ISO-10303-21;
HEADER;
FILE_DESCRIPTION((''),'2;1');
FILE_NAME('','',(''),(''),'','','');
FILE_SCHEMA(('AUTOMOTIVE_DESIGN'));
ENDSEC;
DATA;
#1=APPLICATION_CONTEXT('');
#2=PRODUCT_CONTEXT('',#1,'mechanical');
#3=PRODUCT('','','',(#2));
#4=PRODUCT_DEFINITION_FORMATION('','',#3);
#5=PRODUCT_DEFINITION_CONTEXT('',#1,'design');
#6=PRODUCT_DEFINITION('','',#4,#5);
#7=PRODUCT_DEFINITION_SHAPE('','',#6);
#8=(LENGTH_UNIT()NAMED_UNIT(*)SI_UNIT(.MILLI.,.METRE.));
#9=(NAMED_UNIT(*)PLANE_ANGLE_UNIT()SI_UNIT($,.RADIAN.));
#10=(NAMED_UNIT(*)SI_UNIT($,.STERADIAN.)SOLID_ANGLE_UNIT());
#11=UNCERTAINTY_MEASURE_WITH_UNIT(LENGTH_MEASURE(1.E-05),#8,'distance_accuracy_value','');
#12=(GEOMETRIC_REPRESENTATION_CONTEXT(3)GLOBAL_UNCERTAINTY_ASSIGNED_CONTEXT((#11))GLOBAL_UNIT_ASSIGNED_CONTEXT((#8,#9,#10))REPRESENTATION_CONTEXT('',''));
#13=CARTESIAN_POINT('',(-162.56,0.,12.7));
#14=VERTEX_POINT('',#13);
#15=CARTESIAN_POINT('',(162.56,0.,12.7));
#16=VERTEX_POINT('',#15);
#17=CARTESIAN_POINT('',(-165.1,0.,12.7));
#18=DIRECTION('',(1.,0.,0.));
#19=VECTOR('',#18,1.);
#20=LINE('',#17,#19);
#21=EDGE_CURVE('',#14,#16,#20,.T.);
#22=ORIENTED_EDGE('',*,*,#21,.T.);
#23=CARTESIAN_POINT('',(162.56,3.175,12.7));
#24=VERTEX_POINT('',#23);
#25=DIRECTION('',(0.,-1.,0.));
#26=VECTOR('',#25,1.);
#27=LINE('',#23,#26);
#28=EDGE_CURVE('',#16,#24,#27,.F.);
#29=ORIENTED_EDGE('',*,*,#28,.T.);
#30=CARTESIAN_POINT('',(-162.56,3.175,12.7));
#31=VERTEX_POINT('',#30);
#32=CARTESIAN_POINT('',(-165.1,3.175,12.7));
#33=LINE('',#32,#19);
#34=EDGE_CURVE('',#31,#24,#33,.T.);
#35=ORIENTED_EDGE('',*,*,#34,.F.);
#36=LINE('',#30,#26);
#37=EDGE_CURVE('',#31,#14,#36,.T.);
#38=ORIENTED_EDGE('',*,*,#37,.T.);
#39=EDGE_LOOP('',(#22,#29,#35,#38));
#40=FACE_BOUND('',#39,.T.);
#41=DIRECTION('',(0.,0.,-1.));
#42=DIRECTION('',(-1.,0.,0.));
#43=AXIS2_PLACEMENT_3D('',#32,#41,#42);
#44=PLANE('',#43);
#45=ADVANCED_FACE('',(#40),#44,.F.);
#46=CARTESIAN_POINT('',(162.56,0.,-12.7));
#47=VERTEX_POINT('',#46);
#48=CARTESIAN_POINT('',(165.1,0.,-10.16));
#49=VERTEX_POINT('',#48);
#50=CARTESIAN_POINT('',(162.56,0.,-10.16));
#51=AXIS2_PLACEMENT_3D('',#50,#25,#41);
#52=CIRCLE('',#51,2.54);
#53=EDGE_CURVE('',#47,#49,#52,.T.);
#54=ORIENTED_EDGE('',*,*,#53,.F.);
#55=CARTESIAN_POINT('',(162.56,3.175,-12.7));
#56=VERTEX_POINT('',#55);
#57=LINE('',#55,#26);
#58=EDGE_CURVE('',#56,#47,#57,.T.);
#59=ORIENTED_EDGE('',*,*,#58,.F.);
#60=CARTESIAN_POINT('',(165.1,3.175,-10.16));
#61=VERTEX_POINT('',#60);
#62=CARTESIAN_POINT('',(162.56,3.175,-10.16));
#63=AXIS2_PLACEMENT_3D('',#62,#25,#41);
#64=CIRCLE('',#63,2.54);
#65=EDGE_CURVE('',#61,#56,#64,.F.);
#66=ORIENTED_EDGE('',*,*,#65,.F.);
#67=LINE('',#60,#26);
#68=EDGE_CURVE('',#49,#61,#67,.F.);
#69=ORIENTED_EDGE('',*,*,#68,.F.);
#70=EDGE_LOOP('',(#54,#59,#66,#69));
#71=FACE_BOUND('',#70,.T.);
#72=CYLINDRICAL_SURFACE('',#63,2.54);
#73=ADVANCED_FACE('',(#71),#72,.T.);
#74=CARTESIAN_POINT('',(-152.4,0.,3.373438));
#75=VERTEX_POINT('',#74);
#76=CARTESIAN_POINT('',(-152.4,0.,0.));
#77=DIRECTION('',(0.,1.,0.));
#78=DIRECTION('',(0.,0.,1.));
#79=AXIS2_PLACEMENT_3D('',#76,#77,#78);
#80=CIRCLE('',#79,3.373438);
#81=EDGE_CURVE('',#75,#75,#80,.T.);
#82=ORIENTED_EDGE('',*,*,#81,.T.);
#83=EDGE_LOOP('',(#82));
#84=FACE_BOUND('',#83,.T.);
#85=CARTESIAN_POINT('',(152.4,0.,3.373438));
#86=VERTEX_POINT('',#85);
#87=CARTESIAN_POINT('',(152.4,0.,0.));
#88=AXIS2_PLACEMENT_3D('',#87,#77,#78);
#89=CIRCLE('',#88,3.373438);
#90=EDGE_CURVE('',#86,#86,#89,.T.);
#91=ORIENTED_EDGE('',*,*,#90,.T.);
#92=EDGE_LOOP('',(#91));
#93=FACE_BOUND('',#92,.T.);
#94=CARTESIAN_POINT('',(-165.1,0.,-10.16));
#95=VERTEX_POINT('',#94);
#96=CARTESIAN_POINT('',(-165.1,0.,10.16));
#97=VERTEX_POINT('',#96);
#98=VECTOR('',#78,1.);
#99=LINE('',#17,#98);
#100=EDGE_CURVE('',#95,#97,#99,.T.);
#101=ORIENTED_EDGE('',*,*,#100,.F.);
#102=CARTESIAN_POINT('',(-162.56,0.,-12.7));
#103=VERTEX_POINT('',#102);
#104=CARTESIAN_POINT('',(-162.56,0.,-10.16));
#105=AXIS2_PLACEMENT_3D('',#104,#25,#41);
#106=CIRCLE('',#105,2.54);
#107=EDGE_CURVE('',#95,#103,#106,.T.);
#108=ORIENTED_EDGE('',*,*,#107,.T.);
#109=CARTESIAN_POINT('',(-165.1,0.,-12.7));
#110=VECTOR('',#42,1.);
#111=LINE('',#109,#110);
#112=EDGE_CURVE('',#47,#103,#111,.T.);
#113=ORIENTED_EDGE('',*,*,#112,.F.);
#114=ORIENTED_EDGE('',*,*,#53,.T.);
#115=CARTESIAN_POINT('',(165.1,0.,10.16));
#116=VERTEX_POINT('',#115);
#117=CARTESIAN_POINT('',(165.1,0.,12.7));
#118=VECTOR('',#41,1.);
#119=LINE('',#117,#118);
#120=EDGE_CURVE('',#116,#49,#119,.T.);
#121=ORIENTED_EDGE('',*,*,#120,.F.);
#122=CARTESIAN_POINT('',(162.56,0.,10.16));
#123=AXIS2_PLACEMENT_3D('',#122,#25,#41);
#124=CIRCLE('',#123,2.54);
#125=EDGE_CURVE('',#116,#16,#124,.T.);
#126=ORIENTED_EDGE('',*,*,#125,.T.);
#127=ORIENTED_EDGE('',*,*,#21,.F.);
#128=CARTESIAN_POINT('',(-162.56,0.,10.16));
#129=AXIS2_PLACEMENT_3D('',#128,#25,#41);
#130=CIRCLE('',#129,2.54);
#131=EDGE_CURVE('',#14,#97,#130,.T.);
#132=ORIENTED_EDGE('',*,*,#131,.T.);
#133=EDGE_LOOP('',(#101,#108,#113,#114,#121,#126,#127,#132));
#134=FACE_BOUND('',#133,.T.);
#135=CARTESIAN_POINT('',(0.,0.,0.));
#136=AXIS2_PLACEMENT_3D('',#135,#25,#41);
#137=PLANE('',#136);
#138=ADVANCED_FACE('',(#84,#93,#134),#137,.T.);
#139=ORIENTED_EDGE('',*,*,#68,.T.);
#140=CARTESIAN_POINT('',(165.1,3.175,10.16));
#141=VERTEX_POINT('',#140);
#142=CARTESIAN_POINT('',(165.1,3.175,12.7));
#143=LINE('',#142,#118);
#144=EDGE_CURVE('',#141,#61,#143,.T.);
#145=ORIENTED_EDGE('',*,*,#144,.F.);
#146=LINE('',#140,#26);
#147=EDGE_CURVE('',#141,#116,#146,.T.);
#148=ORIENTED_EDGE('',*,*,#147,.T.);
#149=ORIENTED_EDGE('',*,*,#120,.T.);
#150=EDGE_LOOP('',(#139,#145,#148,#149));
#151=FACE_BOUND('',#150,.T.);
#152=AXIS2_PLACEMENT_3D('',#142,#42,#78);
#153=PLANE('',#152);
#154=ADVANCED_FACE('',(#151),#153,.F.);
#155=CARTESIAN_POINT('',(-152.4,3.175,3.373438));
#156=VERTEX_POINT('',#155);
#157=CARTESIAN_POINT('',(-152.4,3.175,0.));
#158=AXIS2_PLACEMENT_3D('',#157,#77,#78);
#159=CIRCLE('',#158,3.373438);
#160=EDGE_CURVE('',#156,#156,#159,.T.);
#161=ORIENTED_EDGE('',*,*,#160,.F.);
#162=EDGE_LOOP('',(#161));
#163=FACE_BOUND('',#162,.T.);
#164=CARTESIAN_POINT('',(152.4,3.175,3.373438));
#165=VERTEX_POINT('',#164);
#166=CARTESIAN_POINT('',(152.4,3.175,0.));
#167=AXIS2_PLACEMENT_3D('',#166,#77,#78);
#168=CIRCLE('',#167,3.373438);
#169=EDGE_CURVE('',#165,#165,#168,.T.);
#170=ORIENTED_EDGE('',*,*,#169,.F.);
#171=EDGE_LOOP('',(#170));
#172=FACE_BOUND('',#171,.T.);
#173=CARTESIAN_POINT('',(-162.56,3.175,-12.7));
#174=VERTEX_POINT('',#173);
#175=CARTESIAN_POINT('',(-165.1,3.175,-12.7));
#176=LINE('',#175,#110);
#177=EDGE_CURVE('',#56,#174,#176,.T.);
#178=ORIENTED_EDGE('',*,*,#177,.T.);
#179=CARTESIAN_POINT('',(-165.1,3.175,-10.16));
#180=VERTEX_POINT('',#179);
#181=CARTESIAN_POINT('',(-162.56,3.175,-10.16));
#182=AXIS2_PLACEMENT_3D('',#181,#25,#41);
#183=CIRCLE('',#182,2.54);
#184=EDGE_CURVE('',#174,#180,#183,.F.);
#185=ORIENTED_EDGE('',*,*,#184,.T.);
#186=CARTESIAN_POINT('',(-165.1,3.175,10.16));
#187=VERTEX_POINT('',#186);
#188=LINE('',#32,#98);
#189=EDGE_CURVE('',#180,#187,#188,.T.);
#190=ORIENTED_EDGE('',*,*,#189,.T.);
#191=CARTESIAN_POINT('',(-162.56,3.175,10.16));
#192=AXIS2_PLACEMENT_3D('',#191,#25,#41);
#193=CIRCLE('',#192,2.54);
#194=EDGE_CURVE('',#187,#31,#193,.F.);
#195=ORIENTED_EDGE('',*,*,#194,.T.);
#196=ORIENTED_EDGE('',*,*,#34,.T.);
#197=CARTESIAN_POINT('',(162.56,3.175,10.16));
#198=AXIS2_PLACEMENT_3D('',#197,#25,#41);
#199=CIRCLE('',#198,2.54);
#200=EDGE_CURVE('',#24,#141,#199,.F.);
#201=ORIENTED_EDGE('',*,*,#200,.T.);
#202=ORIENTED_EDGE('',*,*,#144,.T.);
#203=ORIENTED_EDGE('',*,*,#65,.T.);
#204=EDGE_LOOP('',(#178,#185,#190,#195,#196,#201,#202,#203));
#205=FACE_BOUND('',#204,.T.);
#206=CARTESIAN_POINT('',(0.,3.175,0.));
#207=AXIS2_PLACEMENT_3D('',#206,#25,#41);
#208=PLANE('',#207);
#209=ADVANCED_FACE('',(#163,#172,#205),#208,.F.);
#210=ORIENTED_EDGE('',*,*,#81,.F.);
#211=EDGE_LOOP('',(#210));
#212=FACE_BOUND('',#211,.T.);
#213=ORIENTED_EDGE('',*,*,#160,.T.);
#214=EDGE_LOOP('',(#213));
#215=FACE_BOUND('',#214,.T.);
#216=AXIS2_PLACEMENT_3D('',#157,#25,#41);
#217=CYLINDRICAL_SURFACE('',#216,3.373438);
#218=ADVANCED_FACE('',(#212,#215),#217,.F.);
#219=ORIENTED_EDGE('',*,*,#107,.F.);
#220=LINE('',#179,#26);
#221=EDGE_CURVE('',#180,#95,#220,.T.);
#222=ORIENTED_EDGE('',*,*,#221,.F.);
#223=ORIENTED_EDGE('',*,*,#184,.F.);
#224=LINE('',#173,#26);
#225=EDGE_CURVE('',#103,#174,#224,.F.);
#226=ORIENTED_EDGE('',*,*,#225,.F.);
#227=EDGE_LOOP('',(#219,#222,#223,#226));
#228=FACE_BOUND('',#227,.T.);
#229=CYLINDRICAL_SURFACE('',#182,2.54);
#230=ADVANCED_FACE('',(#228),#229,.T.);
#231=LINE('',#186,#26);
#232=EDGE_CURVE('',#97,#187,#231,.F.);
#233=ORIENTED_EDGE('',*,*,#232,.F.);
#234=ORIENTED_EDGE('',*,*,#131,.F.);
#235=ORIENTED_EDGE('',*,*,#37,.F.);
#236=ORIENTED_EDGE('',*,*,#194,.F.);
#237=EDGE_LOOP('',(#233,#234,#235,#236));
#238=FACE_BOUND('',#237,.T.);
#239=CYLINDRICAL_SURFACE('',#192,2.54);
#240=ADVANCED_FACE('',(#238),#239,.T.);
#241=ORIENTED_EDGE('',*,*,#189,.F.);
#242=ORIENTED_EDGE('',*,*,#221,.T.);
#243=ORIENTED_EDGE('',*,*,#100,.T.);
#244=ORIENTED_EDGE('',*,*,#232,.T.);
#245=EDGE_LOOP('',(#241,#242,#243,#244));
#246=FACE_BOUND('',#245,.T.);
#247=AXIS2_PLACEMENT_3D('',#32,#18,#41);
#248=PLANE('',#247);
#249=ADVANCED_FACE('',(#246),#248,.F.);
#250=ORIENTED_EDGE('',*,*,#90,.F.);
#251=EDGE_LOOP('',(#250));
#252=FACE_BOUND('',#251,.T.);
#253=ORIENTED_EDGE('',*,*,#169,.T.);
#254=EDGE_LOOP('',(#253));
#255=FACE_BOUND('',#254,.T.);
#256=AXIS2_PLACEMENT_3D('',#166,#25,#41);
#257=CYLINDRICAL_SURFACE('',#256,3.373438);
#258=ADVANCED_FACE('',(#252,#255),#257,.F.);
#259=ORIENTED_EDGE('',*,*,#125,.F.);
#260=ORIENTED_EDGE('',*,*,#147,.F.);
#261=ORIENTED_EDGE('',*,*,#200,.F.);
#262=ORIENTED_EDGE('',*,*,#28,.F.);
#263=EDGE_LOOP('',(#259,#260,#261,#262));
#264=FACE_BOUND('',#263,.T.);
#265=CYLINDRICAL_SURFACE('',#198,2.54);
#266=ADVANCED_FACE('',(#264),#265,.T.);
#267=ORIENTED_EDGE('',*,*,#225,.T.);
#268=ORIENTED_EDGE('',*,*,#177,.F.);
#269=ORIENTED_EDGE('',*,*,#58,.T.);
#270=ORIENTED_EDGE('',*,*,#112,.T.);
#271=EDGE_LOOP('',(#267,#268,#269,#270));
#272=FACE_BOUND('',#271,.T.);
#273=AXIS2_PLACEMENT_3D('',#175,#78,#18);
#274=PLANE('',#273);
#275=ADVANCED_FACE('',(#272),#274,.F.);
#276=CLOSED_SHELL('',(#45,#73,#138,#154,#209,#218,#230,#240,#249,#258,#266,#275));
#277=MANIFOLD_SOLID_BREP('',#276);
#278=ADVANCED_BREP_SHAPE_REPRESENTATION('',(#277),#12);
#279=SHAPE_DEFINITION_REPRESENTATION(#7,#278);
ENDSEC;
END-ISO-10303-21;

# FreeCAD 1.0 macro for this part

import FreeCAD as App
import Part
import Sketcher

V = App.Vector
Q = App.Units.Quantity


def edges_at(feature, points):
    """Names of the edges that pass closest to the given points."""
    edges = feature.Shape.Edges
    near = lambda p: min(range(len(edges)), key=lambda i: edges[i].distToShape(Part.Vertex(*p))[0])
    return sorted({f"Edge{near(p) + 1}" for p in points})


def add_polygon(sketch, points):
    """Adds a closed chain of lines whose ends are joined by coincident constraints."""
    first, n = sketch.GeometryCount, len(points)
    for a, b in zip(points, points[1:] + points[:1]):
        sketch.addGeometry(Part.LineSegment(App.Vector(*a, 0), App.Vector(*b, 0)), False)
    for i in range(n):
        sketch.addConstraint(Sketcher.Constraint("Coincident", first + i, 2, first + (i + 1) % n, 1))

doc = App.newDocument("Part")
body = doc.addObject("PartDesign::Body", "Body")

# Sketch on XZ plane
sketch1 = body.newObject("Sketcher::SketchObject", "Sketch")
sketch1.AttachmentSupport = (doc.getObject("XZ_Plane"), [""])
sketch1.MapMode = "FlatFace"
add_polygon(sketch1, [(-165.1, -12.7), (-165.1, 12.7), (165.1, 12.7), (165.1, -12.7)])  # lines 0-3
sketch1.addGeometry(Part.Circle(V(-152.4, 0, 0), V(0, 0, 1), 3.4), False)  # 4
sketch1.addGeometry(Part.Circle(V(152.4, 0, 0), V(0, 0, 1), 3.4), False)  # 5
sketch1.addConstraint([
    Sketcher.Constraint("Vertical", 0),
    Sketcher.Constraint("Horizontal", 1),
    Sketcher.Constraint("Vertical", 2),
    Sketcher.Constraint("Horizontal", 3),
    Sketcher.Constraint("Equal", 4, 5),
    Sketcher.Constraint("Symmetric", 4, 3, 5, 3, -1, 1),
    Sketcher.Constraint("Symmetric", 0, 2, 2, 2, -1, 1),
    Sketcher.Constraint("PointOnObject", 4, 3, -1),
    Sketcher.Constraint("DistanceX", 1, 1, 1, 2, Q("13 in")),
    Sketcher.Constraint("DistanceY", 0, 1, 0, 2, Q("1 in")),
    Sketcher.Constraint("Diameter", 4, Q("0.265625 in")),
    Sketcher.Constraint("DistanceX", 4, 3, -1, 1, Q("6 in")),
])
pad1 = body.newObject("PartDesign::Pad", "Pad")
pad1.Profile = sketch1
pad1.Length = Q("0.125 in")
pad1.Reversed = True
doc.recompute()

fillet = body.newObject("PartDesign::Fillet", "Fillet")
fillet.Base = (pad1, edges_at(pad1, [
    (165.1, 1.587, 12.7),
    (-165.1, 1.587, 12.7),
    (-165.1, 1.587, -12.7),
    (165.1, 1.587, -12.7),
]))
fillet.Radius = Q("0.1 in")

doc.recompute()
